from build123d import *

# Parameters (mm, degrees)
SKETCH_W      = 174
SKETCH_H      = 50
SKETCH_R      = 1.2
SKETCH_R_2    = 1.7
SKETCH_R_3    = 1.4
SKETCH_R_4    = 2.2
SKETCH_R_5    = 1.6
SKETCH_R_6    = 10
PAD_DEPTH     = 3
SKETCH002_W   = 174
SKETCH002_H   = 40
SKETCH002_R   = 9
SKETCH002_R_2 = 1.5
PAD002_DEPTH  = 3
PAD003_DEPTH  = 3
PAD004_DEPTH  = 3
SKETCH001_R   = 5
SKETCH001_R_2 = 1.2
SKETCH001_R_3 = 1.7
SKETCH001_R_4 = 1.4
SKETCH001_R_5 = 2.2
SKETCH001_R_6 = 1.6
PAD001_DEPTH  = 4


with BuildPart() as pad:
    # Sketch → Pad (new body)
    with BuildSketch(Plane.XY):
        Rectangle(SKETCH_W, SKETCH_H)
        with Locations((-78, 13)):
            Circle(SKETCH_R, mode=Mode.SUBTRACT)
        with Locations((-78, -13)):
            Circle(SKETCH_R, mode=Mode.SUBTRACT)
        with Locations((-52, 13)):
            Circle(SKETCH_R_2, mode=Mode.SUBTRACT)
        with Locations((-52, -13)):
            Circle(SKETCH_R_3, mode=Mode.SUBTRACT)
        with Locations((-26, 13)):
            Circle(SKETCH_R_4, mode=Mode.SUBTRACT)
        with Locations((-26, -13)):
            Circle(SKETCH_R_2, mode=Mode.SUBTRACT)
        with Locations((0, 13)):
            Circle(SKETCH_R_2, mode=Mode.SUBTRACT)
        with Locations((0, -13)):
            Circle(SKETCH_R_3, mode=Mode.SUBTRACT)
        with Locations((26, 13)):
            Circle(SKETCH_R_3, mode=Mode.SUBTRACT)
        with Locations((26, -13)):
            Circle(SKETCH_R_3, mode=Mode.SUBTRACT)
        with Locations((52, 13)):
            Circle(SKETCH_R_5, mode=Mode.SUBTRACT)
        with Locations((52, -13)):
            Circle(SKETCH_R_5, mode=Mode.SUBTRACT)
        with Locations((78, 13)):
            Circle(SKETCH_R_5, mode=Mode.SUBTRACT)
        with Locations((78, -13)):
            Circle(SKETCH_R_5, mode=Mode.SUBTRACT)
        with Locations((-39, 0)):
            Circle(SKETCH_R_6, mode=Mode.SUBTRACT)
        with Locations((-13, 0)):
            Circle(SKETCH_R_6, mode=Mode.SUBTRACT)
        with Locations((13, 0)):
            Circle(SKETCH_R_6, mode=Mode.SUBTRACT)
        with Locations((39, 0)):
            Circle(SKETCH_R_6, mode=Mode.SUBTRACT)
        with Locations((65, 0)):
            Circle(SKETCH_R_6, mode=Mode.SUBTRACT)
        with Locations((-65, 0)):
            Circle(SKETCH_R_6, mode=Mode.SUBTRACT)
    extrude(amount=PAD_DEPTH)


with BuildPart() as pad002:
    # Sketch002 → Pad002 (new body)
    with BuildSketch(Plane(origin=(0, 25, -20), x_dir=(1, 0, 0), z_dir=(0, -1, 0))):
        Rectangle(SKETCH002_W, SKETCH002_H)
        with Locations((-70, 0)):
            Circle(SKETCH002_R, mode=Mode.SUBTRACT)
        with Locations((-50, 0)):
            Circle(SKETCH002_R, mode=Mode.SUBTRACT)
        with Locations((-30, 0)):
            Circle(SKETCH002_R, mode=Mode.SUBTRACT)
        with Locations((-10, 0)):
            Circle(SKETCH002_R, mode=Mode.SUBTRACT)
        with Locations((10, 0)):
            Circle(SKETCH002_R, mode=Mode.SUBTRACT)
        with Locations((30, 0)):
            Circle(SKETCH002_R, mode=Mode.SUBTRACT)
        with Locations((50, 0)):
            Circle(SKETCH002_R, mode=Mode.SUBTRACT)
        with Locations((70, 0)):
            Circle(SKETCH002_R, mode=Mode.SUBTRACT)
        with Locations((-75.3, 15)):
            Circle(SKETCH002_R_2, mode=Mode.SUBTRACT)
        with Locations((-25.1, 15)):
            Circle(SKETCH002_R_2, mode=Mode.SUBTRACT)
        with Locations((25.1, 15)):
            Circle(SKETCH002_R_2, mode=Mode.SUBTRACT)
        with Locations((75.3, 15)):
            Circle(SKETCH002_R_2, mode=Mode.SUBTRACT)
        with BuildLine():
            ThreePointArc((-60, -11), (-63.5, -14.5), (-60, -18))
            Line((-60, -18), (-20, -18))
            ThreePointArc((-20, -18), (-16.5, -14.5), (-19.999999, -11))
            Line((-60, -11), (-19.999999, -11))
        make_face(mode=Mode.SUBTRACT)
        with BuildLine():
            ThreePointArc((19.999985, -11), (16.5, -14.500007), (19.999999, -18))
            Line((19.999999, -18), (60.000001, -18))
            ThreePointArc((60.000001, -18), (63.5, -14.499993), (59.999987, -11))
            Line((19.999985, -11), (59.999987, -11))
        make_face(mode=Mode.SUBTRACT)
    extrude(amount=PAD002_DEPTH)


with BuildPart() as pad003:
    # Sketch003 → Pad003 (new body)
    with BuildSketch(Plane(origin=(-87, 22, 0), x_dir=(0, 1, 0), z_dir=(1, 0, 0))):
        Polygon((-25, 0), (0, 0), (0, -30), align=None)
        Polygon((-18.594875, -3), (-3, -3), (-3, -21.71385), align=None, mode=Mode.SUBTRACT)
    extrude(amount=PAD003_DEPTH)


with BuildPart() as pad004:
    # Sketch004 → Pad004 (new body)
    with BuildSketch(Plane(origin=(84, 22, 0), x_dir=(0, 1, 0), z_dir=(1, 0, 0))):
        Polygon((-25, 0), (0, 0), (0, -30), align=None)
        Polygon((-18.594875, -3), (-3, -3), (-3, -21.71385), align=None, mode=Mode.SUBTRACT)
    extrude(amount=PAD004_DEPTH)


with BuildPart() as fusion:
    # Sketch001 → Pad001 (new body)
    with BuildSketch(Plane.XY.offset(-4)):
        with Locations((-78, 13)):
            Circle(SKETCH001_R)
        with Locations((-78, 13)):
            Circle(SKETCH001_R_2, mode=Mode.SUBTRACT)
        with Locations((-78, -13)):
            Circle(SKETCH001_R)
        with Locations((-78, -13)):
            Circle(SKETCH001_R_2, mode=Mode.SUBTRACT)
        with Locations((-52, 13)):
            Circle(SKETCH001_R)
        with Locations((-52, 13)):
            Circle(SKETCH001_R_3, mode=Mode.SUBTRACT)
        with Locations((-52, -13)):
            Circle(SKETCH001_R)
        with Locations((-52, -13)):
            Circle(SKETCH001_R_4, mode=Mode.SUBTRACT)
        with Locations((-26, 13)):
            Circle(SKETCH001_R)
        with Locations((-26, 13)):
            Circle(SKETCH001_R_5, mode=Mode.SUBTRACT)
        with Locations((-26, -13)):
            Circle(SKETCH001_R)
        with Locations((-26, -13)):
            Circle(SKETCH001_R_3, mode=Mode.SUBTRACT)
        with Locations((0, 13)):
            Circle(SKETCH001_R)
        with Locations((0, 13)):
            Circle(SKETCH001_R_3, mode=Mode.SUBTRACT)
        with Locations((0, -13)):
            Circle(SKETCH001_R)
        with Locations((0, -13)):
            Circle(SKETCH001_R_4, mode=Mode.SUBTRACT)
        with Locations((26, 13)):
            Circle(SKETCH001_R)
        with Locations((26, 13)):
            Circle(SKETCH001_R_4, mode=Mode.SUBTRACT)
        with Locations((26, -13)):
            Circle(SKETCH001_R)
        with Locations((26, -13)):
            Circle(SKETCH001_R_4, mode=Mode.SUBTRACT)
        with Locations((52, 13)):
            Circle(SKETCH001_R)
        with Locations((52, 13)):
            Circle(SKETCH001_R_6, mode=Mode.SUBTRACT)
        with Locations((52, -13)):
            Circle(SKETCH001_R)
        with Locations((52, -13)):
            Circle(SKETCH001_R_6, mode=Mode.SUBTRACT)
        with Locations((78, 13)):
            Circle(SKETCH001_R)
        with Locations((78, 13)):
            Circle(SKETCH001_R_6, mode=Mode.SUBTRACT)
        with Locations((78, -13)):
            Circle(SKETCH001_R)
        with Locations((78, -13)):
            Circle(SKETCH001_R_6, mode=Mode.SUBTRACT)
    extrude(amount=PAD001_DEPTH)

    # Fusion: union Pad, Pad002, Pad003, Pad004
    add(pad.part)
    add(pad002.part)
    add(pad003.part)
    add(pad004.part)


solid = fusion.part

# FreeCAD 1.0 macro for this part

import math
import FreeCAD as App
import Part
import Sketcher

V = App.Vector

doc = App.newDocument("Part")
body = doc.addObject("PartDesign::Body", "Body")

# Sketch on XY plane
sketch1 = body.newObject("Sketcher::SketchObject", "Sketch")
sketch1.AttachmentSupport = (doc.getObject("XY_Plane"), [""])
sketch1.MapMode = "FlatFace"
sketch1.addGeometry([
    Part.LineSegment(V(-87, 25, 0), V(-87, -25, 0)),  # 0
    Part.LineSegment(V(-87, -25, 0), V(87, -25, 0)),  # 1
    Part.LineSegment(V(87, -25, 0), V(87, 25, 0)),  # 2
    Part.LineSegment(V(87, 25, 0), V(-87, 25, 0)),  # 3
    Part.Circle(V(-78, -13, 0), V(0, 0, 1), 1.2),  # 4
    Part.Circle(V(-52, -13, 0), V(0, 0, 1), 1.4),  # 5
    Part.Circle(V(-26, -13, 0), V(0, 0, 1), 1.7),  # 6
    Part.Circle(V(0, -13, 0), V(0, 0, 1), 1.4),  # 7
    Part.Circle(V(-65, 0, 0), V(0, 0, 1), 10),  # 8
    Part.Circle(V(-39, 0, 0), V(0, 0, 1), 10),  # 9
    Part.Circle(V(-13, 0, 0), V(0, 0, 1), 10),  # 10
    Part.Circle(V(26, -13, 0), V(0, 0, 1), 1.4),  # 11
    Part.Circle(V(52, -13, 0), V(0, 0, 1), 1.6),  # 12
    Part.Circle(V(78, -13, 0), V(0, 0, 1), 1.6),  # 13
    Part.Circle(V(13, 0, 0), V(0, 0, 1), 10),  # 14
    Part.Circle(V(39, 0, 0), V(0, 0, 1), 10),  # 15
    Part.Circle(V(65, 0, 0), V(0, 0, 1), 10),  # 16
    Part.Circle(V(-78, 13, 0), V(0, 0, 1), 1.2),  # 17
    Part.Circle(V(-52, 13, 0), V(0, 0, 1), 1.7),  # 18
    Part.Circle(V(-26, 13, 0), V(0, 0, 1), 2.2),  # 19
    Part.Circle(V(0, 13, 0), V(0, 0, 1), 1.7),  # 20
    Part.Circle(V(26, 13, 0), V(0, 0, 1), 1.4),  # 21
    Part.Circle(V(52, 13, 0), V(0, 0, 1), 1.6),  # 22
    Part.Circle(V(78, 13, 0), V(0, 0, 1), 1.6),  # 23
], False)
sketch1.addConstraint([
    Sketcher.Constraint("Coincident", 0, 2, 1, 1),
    Sketcher.Constraint("Coincident", 1, 2, 2, 1),
    Sketcher.Constraint("Coincident", 2, 2, 3, 1),
    Sketcher.Constraint("Coincident", 3, 2, 0, 1),
    Sketcher.Constraint("Vertical", 0),
    Sketcher.Constraint("Horizontal", 1),
    Sketcher.Constraint("Vertical", 2),
    Sketcher.Constraint("Horizontal", 3),
    Sketcher.Constraint("Equal", 5, 7),
    Sketcher.Constraint("Equal", 8, 9),
    Sketcher.Constraint("Equal", 9, 10),
    Sketcher.Constraint("Equal", 7, 11),
    Sketcher.Constraint("Equal", 12, 13),
    Sketcher.Constraint("Equal", 10, 14),
    Sketcher.Constraint("Equal", 14, 15),
    Sketcher.Constraint("Equal", 15, 16),
    Sketcher.Constraint("Equal", 4, 17),
    Sketcher.Constraint("Equal", 6, 18),
    Sketcher.Constraint("Equal", 18, 20),
    Sketcher.Constraint("Equal", 11, 21),
    Sketcher.Constraint("Equal", 13, 22),
    Sketcher.Constraint("Equal", 22, 23),
    Sketcher.Constraint("Symmetric", 10, 3, 14, 3, -1, 1),
    Sketcher.Constraint("Symmetric", 9, 3, 15, 3, -1, 1),
    Sketcher.Constraint("Symmetric", 8, 3, 16, 3, -1, 1),
    Sketcher.Constraint("Symmetric", 13, 3, 17, 3, -1, 1),
    Sketcher.Constraint("Symmetric", 12, 3, 18, 3, -1, 1),
    Sketcher.Constraint("Symmetric", 11, 3, 19, 3, -1, 1),
    Sketcher.Constraint("Symmetric", 7, 3, 20, 3, -1, 1),
    Sketcher.Constraint("Symmetric", 6, 3, 21, 3, -1, 1),
    Sketcher.Constraint("Symmetric", 5, 3, 22, 3, -1, 1),
    Sketcher.Constraint("Symmetric", 4, 3, 23, 3, -1, 1),
    Sketcher.Constraint("Symmetric", 0, 2, 2, 2, -1, 1),
    Sketcher.Constraint("Symmetric", 6, 3, 11, 3, -2),
    Sketcher.Constraint("Symmetric", 5, 3, 12, 3, -2),
    Sketcher.Constraint("Symmetric", 4, 3, 13, 3, -2),
    Sketcher.Constraint("PointOnObject", 7, 3, -2),
    Sketcher.Constraint("PointOnObject", 8, 3, -1),
    Sketcher.Constraint("PointOnObject", 9, 3, -1),
    Sketcher.Constraint("PointOnObject", 10, 3, -1),
    Sketcher.Constraint("Horizontal", 4, 3, 5, 3),
    Sketcher.Constraint("Horizontal", 5, 3, 6, 3),
    Sketcher.Constraint("Horizontal", 6, 3, 7, 3),
    Sketcher.Constraint("Diameter", 8, 20.0),
    Sketcher.Constraint("Diameter", 4, 2.4),
    Sketcher.Constraint("Diameter", 5, 2.8),
    Sketcher.Constraint("Diameter", 6, 3.4),
    Sketcher.Constraint("Diameter", 12, 3.2),
    Sketcher.Constraint("Diameter", 19, 4.4),
    Sketcher.Constraint("DistanceX", 1, 1, 1, 2, 174.0),
    Sketcher.Constraint("DistanceY", 0, 2, 0, 1, 50.0),
    Sketcher.Constraint("DistanceX", 4, 3, -1, 1, 78.0),
    Sketcher.Constraint("DistanceY", 4, 3, -1, 1, 13.0),
    Sketcher.Constraint("DistanceX", 5, 3, -1, 1, 52.0),
    Sketcher.Constraint("DistanceX", 6, 3, -1, 1, 26.0),
    Sketcher.Constraint("DistanceX", 8, 3, -1, 1, 65.0),
    Sketcher.Constraint("DistanceX", 9, 3, -1, 1, 39.0),
    Sketcher.Constraint("DistanceX", 10, 3, -1, 1, 13.0),
])
pad1 = body.newObject("PartDesign::Pad", "Pad")
pad1.Profile = sketch1
pad1.Length = 3
body2 = doc.addObject("PartDesign::Body", "Body001")

# Sketch on XZ plane
sketch2 = body2.newObject("Sketcher::SketchObject", "Sketch001")
sketch2.AttachmentSupport = (doc.getObject("XZ_Plane001"), [""])
sketch2.MapMode = "FlatFace"
sketch2.AttachmentOffset = App.Placement(V(0, 0, -25), App.Rotation())
sketch2.addGeometry([
    Part.LineSegment(V(-87, 0, 0), V(-87, -40, 0)),  # 0
    Part.LineSegment(V(-87, -40, 0), V(87, -40, 0)),  # 1
    Part.LineSegment(V(87, -40, 0), V(87, 0, 0)),  # 2
    Part.LineSegment(V(87, 0, 0), V(-87, 0, 0)),  # 3
    Part.ArcOfCircle(Part.Circle(V(-60, -34.5, 0), V(0, 0, 1), 3.5), math.radians(90), math.radians(270)),  # 4
    Part.LineSegment(V(-60, -31, 0), V(-20, -31, 0)),  # 5
    Part.ArcOfCircle(Part.Circle(V(-20, -34.5, 0), V(0, 0, 1), 3.5), math.radians(-90), math.radians(90)),  # 6
    Part.LineSegment(V(-20, -38, 0), V(-60, -38, 0)),  # 7
    Part.ArcOfCircle(Part.Circle(V(20, -34.5, 0), V(0, 0, 1), 3.5), math.radians(90), math.radians(270)),  # 8
    Part.LineSegment(V(20, -31, 0), V(60, -31, 0)),  # 9
    Part.ArcOfCircle(Part.Circle(V(60, -34.5, 0), V(0, 0, 1), 3.5), math.radians(-90), math.radians(90)),  # 10
    Part.LineSegment(V(60, -38, 0), V(20, -38, 0)),  # 11
    Part.Circle(V(-70, -20, 0), V(0, 0, 1), 9),  # 12
    Part.Circle(V(-50, -20, 0), V(0, 0, 1), 9),  # 13
    Part.Circle(V(-30, -20, 0), V(0, 0, 1), 9),  # 14
    Part.Circle(V(-10, -20, 0), V(0, 0, 1), 9),  # 15
    Part.Circle(V(-75.3, -5, 0), V(0, 0, 1), 1.5),  # 16
    Part.Circle(V(-25.1, -5, 0), V(0, 0, 1), 1.5),  # 17
    Part.Circle(V(10, -20, 0), V(0, 0, 1), 9),  # 18
    Part.Circle(V(30, -20, 0), V(0, 0, 1), 9),  # 19
    Part.Circle(V(50, -20, 0), V(0, 0, 1), 9),  # 20
    Part.Circle(V(70, -20, 0), V(0, 0, 1), 9),  # 21
    Part.Circle(V(25.1, -5, 0), V(0, 0, 1), 1.5),  # 22
    Part.Circle(V(75.3, -5, 0), V(0, 0, 1), 1.5),  # 23
], False)
sketch2.addConstraint([
    Sketcher.Constraint("Coincident", 0, 2, 1, 1),
    Sketcher.Constraint("Coincident", 1, 2, 2, 1),
    Sketcher.Constraint("Coincident", 2, 2, 3, 1),
    Sketcher.Constraint("Coincident", 3, 2, 0, 1),
    Sketcher.Constraint("Tangent", 4, 1, 5, 1),
    Sketcher.Constraint("Tangent", 5, 2, 6, 2),
    Sketcher.Constraint("Tangent", 6, 1, 7, 1),
    Sketcher.Constraint("Tangent", 7, 2, 4, 2),
    Sketcher.Constraint("Coincident", 8, 1, 9, 1),
    Sketcher.Constraint("Coincident", 9, 2, 10, 2),
    Sketcher.Constraint("Tangent", 10, 1, 11, 1),
    Sketcher.Constraint("Tangent", 11, 2, 8, 2),
    Sketcher.Constraint("Vertical", 0),
    Sketcher.Constraint("Horizontal", 1),
    Sketcher.Constraint("Vertical", 2),
    Sketcher.Constraint("Horizontal", 3),
    Sketcher.Constraint("Horizontal", 5),
    Sketcher.Constraint("Horizontal", 7),
    Sketcher.Constraint("Horizontal", 9),
    Sketcher.Constraint("Horizontal", 11),
    Sketcher.Constraint("Equal", 6, 8),
    Sketcher.Constraint("Equal", 12, 13),
    Sketcher.Constraint("Equal", 13, 14),
    Sketcher.Constraint("Equal", 14, 15),
    Sketcher.Constraint("Equal", 16, 17),
    Sketcher.Constraint("Equal", 15, 18),
    Sketcher.Constraint("Equal", 18, 19),
    Sketcher.Constraint("Equal", 19, 20),
    Sketcher.Constraint("Equal", 20, 21),
    Sketcher.Constraint("Equal", 17, 22),
    Sketcher.Constraint("Equal", 22, 23),
    Sketcher.Constraint("Symmetric", 2, 2, 3, 2, -1, 1),
    Sketcher.Constraint("Symmetric", 6, 3, 8, 3, -2),
    Sketcher.Constraint("Symmetric", 15, 3, 18, 3, -2),
    Sketcher.Constraint("Symmetric", 14, 3, 19, 3, -2),
    Sketcher.Constraint("Symmetric", 13, 3, 20, 3, -2),
    Sketcher.Constraint("Symmetric", 12, 3, 21, 3, -2),
    Sketcher.Constraint("Symmetric", 17, 3, 22, 3, -2),
    Sketcher.Constraint("Symmetric", 16, 3, 23, 3, -2),
    Sketcher.Constraint("Horizontal", 12, 3, 13, 3),
    Sketcher.Constraint("Horizontal", 13, 3, 14, 3),
    Sketcher.Constraint("Horizontal", 14, 3, 15, 3),
    Sketcher.Constraint("Horizontal", 16, 3, 17, 3),
    Sketcher.Constraint("Equal", 7, 9),
    Sketcher.Constraint("Equal", 9, 11),
    Sketcher.Constraint("Equal", 11, 0),
    Sketcher.Constraint("Diameter", 12, 18.0),
    Sketcher.Constraint("Diameter", 16, 3.0),
    Sketcher.Constraint("Radius", 4, 3.5),
    Sketcher.Constraint("DistanceX", 1, 1, 1, 2, 174.0),
    Sketcher.Constraint("DistanceX", 5, 1, 5, 2, 40.000001),
    Sketcher.Constraint("DistanceX", 4, 3, -1, 1, 60.0),
    Sketcher.Constraint("DistanceX", 12, 3, -1, 1, 70.0),
    Sketcher.Constraint("DistanceY", 12, 3, -1, 1, 20.0),
    Sketcher.Constraint("DistanceX", 13, 3, -1, 1, 50.0),
    Sketcher.Constraint("DistanceX", 14, 3, -1, 1, 30.0),
    Sketcher.Constraint("DistanceX", 15, 3, -1, 1, 10.0),
    Sketcher.Constraint("DistanceY", 16, 3, -1, 1, 5.0),
    Sketcher.Constraint("DistanceY", 4, 1, -1, 1, 31.0),
    Sketcher.Constraint("DistanceX", 16, 3, -1, 1, 75.3),
    Sketcher.Constraint("DistanceX", 17, 3, -1, 1, 25.1),
    Sketcher.Constraint("DistanceX", -1, 1, 8, 1, 19.999985),
])
pad2 = body2.newObject("PartDesign::Pad", "Pad001")
pad2.Profile = sketch2
pad2.Length = 3
body3 = doc.addObject("PartDesign::Body", "Body002")

# Sketch on YZ plane
sketch3 = body3.newObject("Sketcher::SketchObject", "Sketch002")
sketch3.AttachmentSupport = (doc.getObject("YZ_Plane002"), [""])
sketch3.MapMode = "FlatFace"
sketch3.AttachmentOffset = App.Placement(V(0, 0, -87), App.Rotation())
sketch3.addGeometry([
    Part.LineSegment(V(22, 0, 0), V(-3, 0, 0)),  # 0
    Part.LineSegment(V(-3, 0, 0), V(22, -30, 0)),  # 1
    Part.LineSegment(V(22, -30, 0), V(22, 0, 0)),  # 2
    Part.LineSegment(V(3, -3, 0), V(19, -3, 0)),  # 3
    Part.LineSegment(V(19, -3, 0), V(19, -22, 0)),  # 4
    Part.LineSegment(V(19, -22, 0), V(3, -3, 0)),  # 5
], False)
sketch3.addConstraint([
    Sketcher.Constraint("Coincident", 0, 2, 1, 1),
    Sketcher.Constraint("Coincident", 1, 2, 2, 1),
    Sketcher.Constraint("Coincident", 2, 2, 0, 1),
    Sketcher.Constraint("Coincident", 3, 2, 4, 1),
    Sketcher.Constraint("Coincident", 4, 2, 5, 1),
    Sketcher.Constraint("Coincident", 5, 2, 3, 1),
    Sketcher.Constraint("Horizontal", 0),
    Sketcher.Constraint("Vertical", 2),
    Sketcher.Constraint("Horizontal", 3),
    Sketcher.Constraint("Vertical", 4),
    Sketcher.Constraint("PointOnObject", 0, 2, -1),
    Sketcher.Constraint("Parallel", 1, 5),
    Sketcher.Constraint("DistanceX", 0, 2, 0, 1, 25.0),
    Sketcher.Constraint("DistanceY", 2, 1, 2, 2, 30.0),
    Sketcher.Constraint("DistanceX", 0, 2, -1, 1, 3.0),
    Sketcher.Constraint("DistanceX", -1, 1, 3, 2, 19.0),
    Sketcher.Constraint("DistanceY", 3, 2, -1, 1, 3.0),
    Sketcher.Constraint("DistanceY", 4, 2, 4, 1, 18.71385),
])
pad3 = body3.newObject("PartDesign::Pad", "Pad002")
pad3.Profile = sketch3
pad3.Length = 3
body4 = doc.addObject("PartDesign::Body", "Body003")

# Sketch on YZ plane
sketch4 = body4.newObject("Sketcher::SketchObject", "Sketch003")
sketch4.AttachmentSupport = (doc.getObject("YZ_Plane003"), [""])
sketch4.MapMode = "FlatFace"
sketch4.AttachmentOffset = App.Placement(V(0, 0, 84), App.Rotation())
sketch4.addGeometry([
    Part.LineSegment(V(22, 0, 0), V(-3, 0, 0)),  # 0
    Part.LineSegment(V(-3, 0, 0), V(22, -30, 0)),  # 1
    Part.LineSegment(V(22, -30, 0), V(22, 0, 0)),  # 2
    Part.LineSegment(V(3, -3, 0), V(19, -3, 0)),  # 3
    Part.LineSegment(V(19, -3, 0), V(19, -22, 0)),  # 4
    Part.LineSegment(V(19, -22, 0), V(3, -3, 0)),  # 5
], False)
sketch4.addConstraint([
    Sketcher.Constraint("Coincident", 0, 2, 1, 1),
    Sketcher.Constraint("Coincident", 1, 2, 2, 1),
    Sketcher.Constraint("Coincident", 2, 2, 0, 1),
    Sketcher.Constraint("Coincident", 3, 2, 4, 1),
    Sketcher.Constraint("Coincident", 4, 2, 5, 1),
    Sketcher.Constraint("Coincident", 5, 2, 3, 1),
    Sketcher.Constraint("Horizontal", 0),
    Sketcher.Constraint("Vertical", 2),
    Sketcher.Constraint("Horizontal", 3),
    Sketcher.Constraint("Vertical", 4),
    Sketcher.Constraint("PointOnObject", 0, 2, -1),
    Sketcher.Constraint("Parallel", 1, 5),
    Sketcher.Constraint("DistanceX", 0, 2, 0, 1, 25.0),
    Sketcher.Constraint("DistanceY", 2, 1, 2, 2, 30.0),
    Sketcher.Constraint("DistanceX", 0, 2, -1, 1, 3.0),
    Sketcher.Constraint("DistanceX", -1, 1, 3, 2, 19.0),
    Sketcher.Constraint("DistanceY", 3, 2, -1, 1, 3.0),
    Sketcher.Constraint("DistanceY", 4, 2, 4, 1, 18.71385),
])
pad4 = body4.newObject("PartDesign::Pad", "Pad003")
pad4.Profile = sketch4
pad4.Length = 3
body5 = doc.addObject("PartDesign::Body", "Body004")
body5.AllowCompound = True

# Sketch on XY plane
sketch5 = body5.newObject("Sketcher::SketchObject", "Sketch004")
sketch5.AttachmentSupport = (doc.getObject("XY_Plane004"), [""])
sketch5.MapMode = "FlatFace"
sketch5.AttachmentOffset = App.Placement(V(0, 0, -4), App.Rotation())
sketch5.addGeometry([
    Part.Circle(V(-78, 13, 0), V(0, 0, 1), 5),  # 0
    Part.Circle(V(-78, 13, 0), V(0, 0, 1), 1.2),  # 1
    Part.Circle(V(-78, -13, 0), V(0, 0, 1), 5),  # 2
    Part.Circle(V(-78, -13, 0), V(0, 0, 1), 1.2),  # 3
    Part.Circle(V(-52, 13, 0), V(0, 0, 1), 5),  # 4
    Part.Circle(V(-52, 13, 0), V(0, 0, 1), 1.7),  # 5
    Part.Circle(V(-52, -13, 0), V(0, 0, 1), 5),  # 6
    Part.Circle(V(-52, -13, 0), V(0, 0, 1), 1.4),  # 7
    Part.Circle(V(-26, 13, 0), V(0, 0, 1), 5),  # 8
    Part.Circle(V(-26, 13, 0), V(0, 0, 1), 2.2),  # 9
    Part.Circle(V(-26, -13, 0), V(0, 0, 1), 5),  # 10
    Part.Circle(V(-26, -13, 0), V(0, 0, 1), 1.7),  # 11
    Part.Circle(V(0, 13, 0), V(0, 0, 1), 5),  # 12
    Part.Circle(V(0, 13, 0), V(0, 0, 1), 1.7),  # 13
    Part.Circle(V(0, -13, 0), V(0, 0, 1), 5),  # 14
    Part.Circle(V(0, -13, 0), V(0, 0, 1), 1.4),  # 15
    Part.Circle(V(26, 13, 0), V(0, 0, 1), 5),  # 16
    Part.Circle(V(26, 13, 0), V(0, 0, 1), 1.4),  # 17
    Part.Circle(V(26, -13, 0), V(0, 0, 1), 5),  # 18
    Part.Circle(V(26, -13, 0), V(0, 0, 1), 1.4),  # 19
    Part.Circle(V(52, 13, 0), V(0, 0, 1), 5),  # 20
    Part.Circle(V(52, 13, 0), V(0, 0, 1), 1.6),  # 21
    Part.Circle(V(52, -13, 0), V(0, 0, 1), 5),  # 22
    Part.Circle(V(52, -13, 0), V(0, 0, 1), 1.6),  # 23
    Part.Circle(V(78, 13, 0), V(0, 0, 1), 5),  # 24
    Part.Circle(V(78, 13, 0), V(0, 0, 1), 1.6),  # 25
    Part.Circle(V(78, -13, 0), V(0, 0, 1), 5),  # 26
    Part.Circle(V(78, -13, 0), V(0, 0, 1), 1.6),  # 27
], False)
sketch5.addConstraint([
    Sketcher.Constraint("Coincident", 1, 3, 0, 3),
    Sketcher.Constraint("Coincident", 3, 3, 2, 3),
    Sketcher.Constraint("Coincident", 5, 3, 4, 3),
    Sketcher.Constraint("Coincident", 7, 3, 6, 3),
    Sketcher.Constraint("Coincident", 9, 3, 8, 3),
    Sketcher.Constraint("Coincident", 11, 3, 10, 3),
    Sketcher.Constraint("Coincident", 13, 3, 12, 3),
    Sketcher.Constraint("Coincident", 15, 3, 14, 3),
    Sketcher.Constraint("Coincident", 17, 3, 16, 3),
    Sketcher.Constraint("Coincident", 19, 3, 18, 3),
    Sketcher.Constraint("Coincident", 21, 3, 20, 3),
    Sketcher.Constraint("Coincident", 23, 3, 22, 3),
    Sketcher.Constraint("Coincident", 25, 3, 24, 3),
    Sketcher.Constraint("Coincident", 27, 3, 26, 3),
    Sketcher.Constraint("Equal", 0, 2),
    Sketcher.Constraint("Equal", 1, 3),
    Sketcher.Constraint("Equal", 2, 4),
    Sketcher.Constraint("Equal", 4, 6),
    Sketcher.Constraint("Equal", 6, 8),
    Sketcher.Constraint("Equal", 8, 10),
    Sketcher.Constraint("Equal", 5, 11),
    Sketcher.Constraint("Equal", 10, 12),
    Sketcher.Constraint("Equal", 11, 13),
    Sketcher.Constraint("Equal", 12, 14),
    Sketcher.Constraint("Equal", 7, 15),
    Sketcher.Constraint("Equal", 14, 16),
    Sketcher.Constraint("Equal", 15, 17),
    Sketcher.Constraint("Equal", 16, 18),
    Sketcher.Constraint("Equal", 17, 19),
    Sketcher.Constraint("Equal", 18, 20),
    Sketcher.Constraint("Equal", 20, 22),
    Sketcher.Constraint("Equal", 21, 23),
    Sketcher.Constraint("Equal", 22, 24),
    Sketcher.Constraint("Equal", 23, 25),
    Sketcher.Constraint("Equal", 24, 26),
    Sketcher.Constraint("Equal", 25, 27),
    Sketcher.Constraint("Symmetric", 12, 3, 14, 3, -1, 1),
    Sketcher.Constraint("Symmetric", 10, 3, 16, 3, -1, 1),
    Sketcher.Constraint("Symmetric", 8, 3, 18, 3, -1, 1),
    Sketcher.Constraint("Symmetric", 6, 3, 20, 3, -1, 1),
    Sketcher.Constraint("Symmetric", 4, 3, 22, 3, -1, 1),
    Sketcher.Constraint("Symmetric", 2, 3, 24, 3, -1, 1),
    Sketcher.Constraint("Symmetric", 0, 3, 26, 3, -1, 1),
    Sketcher.Constraint("Symmetric", 8, 3, 16, 3, -2),
    Sketcher.Constraint("Symmetric", 4, 3, 20, 3, -2),
    Sketcher.Constraint("Symmetric", 0, 3, 24, 3, -2),
    Sketcher.Constraint("PointOnObject", 12, 3, -2),
    Sketcher.Constraint("Horizontal", 1, 3, 4, 3),
    Sketcher.Constraint("Horizontal", 5, 3, 8, 3),
    Sketcher.Constraint("Horizontal", 9, 3, 12, 3),
    Sketcher.Constraint("Diameter", 0, 10.0),
    Sketcher.Constraint("Diameter", 1, 2.4),
    Sketcher.Constraint("Diameter", 5, 3.4),
    Sketcher.Constraint("Diameter", 7, 2.8),
    Sketcher.Constraint("Diameter", 9, 4.4),
    Sketcher.Constraint("Diameter", 21, 3.2),
    Sketcher.Constraint("DistanceX", 0, 3, -1, 1, 78.0),
    Sketcher.Constraint("DistanceY", -1, 1, 0, 3, 13.0),
    Sketcher.Constraint("DistanceX", 4, 3, -1, 1, 52.0),
    Sketcher.Constraint("DistanceX", 8, 3, -1, 1, 26.0),
])
pad5 = body5.newObject("PartDesign::Pad", "Pad004")
pad5.Profile = sketch5
pad5.Length = 4
doc.recompute()

boolean = body5.newObject("PartDesign::Boolean", "Boolean")
boolean.Type = "Fuse"
boolean.addObjects([body])
doc.recompute()

boolean2 = body5.newObject("PartDesign::Boolean", "Boolean001")
boolean2.Type = "Fuse"
boolean2.addObjects([body2])
doc.recompute()

boolean3 = body5.newObject("PartDesign::Boolean", "Boolean002")
boolean3.Type = "Fuse"
boolean3.addObjects([body3])
doc.recompute()

boolean4 = body5.newObject("PartDesign::Boolean", "Boolean003")
boolean4.Type = "Fuse"
boolean4.addObjects([body4])

doc.recompute()
